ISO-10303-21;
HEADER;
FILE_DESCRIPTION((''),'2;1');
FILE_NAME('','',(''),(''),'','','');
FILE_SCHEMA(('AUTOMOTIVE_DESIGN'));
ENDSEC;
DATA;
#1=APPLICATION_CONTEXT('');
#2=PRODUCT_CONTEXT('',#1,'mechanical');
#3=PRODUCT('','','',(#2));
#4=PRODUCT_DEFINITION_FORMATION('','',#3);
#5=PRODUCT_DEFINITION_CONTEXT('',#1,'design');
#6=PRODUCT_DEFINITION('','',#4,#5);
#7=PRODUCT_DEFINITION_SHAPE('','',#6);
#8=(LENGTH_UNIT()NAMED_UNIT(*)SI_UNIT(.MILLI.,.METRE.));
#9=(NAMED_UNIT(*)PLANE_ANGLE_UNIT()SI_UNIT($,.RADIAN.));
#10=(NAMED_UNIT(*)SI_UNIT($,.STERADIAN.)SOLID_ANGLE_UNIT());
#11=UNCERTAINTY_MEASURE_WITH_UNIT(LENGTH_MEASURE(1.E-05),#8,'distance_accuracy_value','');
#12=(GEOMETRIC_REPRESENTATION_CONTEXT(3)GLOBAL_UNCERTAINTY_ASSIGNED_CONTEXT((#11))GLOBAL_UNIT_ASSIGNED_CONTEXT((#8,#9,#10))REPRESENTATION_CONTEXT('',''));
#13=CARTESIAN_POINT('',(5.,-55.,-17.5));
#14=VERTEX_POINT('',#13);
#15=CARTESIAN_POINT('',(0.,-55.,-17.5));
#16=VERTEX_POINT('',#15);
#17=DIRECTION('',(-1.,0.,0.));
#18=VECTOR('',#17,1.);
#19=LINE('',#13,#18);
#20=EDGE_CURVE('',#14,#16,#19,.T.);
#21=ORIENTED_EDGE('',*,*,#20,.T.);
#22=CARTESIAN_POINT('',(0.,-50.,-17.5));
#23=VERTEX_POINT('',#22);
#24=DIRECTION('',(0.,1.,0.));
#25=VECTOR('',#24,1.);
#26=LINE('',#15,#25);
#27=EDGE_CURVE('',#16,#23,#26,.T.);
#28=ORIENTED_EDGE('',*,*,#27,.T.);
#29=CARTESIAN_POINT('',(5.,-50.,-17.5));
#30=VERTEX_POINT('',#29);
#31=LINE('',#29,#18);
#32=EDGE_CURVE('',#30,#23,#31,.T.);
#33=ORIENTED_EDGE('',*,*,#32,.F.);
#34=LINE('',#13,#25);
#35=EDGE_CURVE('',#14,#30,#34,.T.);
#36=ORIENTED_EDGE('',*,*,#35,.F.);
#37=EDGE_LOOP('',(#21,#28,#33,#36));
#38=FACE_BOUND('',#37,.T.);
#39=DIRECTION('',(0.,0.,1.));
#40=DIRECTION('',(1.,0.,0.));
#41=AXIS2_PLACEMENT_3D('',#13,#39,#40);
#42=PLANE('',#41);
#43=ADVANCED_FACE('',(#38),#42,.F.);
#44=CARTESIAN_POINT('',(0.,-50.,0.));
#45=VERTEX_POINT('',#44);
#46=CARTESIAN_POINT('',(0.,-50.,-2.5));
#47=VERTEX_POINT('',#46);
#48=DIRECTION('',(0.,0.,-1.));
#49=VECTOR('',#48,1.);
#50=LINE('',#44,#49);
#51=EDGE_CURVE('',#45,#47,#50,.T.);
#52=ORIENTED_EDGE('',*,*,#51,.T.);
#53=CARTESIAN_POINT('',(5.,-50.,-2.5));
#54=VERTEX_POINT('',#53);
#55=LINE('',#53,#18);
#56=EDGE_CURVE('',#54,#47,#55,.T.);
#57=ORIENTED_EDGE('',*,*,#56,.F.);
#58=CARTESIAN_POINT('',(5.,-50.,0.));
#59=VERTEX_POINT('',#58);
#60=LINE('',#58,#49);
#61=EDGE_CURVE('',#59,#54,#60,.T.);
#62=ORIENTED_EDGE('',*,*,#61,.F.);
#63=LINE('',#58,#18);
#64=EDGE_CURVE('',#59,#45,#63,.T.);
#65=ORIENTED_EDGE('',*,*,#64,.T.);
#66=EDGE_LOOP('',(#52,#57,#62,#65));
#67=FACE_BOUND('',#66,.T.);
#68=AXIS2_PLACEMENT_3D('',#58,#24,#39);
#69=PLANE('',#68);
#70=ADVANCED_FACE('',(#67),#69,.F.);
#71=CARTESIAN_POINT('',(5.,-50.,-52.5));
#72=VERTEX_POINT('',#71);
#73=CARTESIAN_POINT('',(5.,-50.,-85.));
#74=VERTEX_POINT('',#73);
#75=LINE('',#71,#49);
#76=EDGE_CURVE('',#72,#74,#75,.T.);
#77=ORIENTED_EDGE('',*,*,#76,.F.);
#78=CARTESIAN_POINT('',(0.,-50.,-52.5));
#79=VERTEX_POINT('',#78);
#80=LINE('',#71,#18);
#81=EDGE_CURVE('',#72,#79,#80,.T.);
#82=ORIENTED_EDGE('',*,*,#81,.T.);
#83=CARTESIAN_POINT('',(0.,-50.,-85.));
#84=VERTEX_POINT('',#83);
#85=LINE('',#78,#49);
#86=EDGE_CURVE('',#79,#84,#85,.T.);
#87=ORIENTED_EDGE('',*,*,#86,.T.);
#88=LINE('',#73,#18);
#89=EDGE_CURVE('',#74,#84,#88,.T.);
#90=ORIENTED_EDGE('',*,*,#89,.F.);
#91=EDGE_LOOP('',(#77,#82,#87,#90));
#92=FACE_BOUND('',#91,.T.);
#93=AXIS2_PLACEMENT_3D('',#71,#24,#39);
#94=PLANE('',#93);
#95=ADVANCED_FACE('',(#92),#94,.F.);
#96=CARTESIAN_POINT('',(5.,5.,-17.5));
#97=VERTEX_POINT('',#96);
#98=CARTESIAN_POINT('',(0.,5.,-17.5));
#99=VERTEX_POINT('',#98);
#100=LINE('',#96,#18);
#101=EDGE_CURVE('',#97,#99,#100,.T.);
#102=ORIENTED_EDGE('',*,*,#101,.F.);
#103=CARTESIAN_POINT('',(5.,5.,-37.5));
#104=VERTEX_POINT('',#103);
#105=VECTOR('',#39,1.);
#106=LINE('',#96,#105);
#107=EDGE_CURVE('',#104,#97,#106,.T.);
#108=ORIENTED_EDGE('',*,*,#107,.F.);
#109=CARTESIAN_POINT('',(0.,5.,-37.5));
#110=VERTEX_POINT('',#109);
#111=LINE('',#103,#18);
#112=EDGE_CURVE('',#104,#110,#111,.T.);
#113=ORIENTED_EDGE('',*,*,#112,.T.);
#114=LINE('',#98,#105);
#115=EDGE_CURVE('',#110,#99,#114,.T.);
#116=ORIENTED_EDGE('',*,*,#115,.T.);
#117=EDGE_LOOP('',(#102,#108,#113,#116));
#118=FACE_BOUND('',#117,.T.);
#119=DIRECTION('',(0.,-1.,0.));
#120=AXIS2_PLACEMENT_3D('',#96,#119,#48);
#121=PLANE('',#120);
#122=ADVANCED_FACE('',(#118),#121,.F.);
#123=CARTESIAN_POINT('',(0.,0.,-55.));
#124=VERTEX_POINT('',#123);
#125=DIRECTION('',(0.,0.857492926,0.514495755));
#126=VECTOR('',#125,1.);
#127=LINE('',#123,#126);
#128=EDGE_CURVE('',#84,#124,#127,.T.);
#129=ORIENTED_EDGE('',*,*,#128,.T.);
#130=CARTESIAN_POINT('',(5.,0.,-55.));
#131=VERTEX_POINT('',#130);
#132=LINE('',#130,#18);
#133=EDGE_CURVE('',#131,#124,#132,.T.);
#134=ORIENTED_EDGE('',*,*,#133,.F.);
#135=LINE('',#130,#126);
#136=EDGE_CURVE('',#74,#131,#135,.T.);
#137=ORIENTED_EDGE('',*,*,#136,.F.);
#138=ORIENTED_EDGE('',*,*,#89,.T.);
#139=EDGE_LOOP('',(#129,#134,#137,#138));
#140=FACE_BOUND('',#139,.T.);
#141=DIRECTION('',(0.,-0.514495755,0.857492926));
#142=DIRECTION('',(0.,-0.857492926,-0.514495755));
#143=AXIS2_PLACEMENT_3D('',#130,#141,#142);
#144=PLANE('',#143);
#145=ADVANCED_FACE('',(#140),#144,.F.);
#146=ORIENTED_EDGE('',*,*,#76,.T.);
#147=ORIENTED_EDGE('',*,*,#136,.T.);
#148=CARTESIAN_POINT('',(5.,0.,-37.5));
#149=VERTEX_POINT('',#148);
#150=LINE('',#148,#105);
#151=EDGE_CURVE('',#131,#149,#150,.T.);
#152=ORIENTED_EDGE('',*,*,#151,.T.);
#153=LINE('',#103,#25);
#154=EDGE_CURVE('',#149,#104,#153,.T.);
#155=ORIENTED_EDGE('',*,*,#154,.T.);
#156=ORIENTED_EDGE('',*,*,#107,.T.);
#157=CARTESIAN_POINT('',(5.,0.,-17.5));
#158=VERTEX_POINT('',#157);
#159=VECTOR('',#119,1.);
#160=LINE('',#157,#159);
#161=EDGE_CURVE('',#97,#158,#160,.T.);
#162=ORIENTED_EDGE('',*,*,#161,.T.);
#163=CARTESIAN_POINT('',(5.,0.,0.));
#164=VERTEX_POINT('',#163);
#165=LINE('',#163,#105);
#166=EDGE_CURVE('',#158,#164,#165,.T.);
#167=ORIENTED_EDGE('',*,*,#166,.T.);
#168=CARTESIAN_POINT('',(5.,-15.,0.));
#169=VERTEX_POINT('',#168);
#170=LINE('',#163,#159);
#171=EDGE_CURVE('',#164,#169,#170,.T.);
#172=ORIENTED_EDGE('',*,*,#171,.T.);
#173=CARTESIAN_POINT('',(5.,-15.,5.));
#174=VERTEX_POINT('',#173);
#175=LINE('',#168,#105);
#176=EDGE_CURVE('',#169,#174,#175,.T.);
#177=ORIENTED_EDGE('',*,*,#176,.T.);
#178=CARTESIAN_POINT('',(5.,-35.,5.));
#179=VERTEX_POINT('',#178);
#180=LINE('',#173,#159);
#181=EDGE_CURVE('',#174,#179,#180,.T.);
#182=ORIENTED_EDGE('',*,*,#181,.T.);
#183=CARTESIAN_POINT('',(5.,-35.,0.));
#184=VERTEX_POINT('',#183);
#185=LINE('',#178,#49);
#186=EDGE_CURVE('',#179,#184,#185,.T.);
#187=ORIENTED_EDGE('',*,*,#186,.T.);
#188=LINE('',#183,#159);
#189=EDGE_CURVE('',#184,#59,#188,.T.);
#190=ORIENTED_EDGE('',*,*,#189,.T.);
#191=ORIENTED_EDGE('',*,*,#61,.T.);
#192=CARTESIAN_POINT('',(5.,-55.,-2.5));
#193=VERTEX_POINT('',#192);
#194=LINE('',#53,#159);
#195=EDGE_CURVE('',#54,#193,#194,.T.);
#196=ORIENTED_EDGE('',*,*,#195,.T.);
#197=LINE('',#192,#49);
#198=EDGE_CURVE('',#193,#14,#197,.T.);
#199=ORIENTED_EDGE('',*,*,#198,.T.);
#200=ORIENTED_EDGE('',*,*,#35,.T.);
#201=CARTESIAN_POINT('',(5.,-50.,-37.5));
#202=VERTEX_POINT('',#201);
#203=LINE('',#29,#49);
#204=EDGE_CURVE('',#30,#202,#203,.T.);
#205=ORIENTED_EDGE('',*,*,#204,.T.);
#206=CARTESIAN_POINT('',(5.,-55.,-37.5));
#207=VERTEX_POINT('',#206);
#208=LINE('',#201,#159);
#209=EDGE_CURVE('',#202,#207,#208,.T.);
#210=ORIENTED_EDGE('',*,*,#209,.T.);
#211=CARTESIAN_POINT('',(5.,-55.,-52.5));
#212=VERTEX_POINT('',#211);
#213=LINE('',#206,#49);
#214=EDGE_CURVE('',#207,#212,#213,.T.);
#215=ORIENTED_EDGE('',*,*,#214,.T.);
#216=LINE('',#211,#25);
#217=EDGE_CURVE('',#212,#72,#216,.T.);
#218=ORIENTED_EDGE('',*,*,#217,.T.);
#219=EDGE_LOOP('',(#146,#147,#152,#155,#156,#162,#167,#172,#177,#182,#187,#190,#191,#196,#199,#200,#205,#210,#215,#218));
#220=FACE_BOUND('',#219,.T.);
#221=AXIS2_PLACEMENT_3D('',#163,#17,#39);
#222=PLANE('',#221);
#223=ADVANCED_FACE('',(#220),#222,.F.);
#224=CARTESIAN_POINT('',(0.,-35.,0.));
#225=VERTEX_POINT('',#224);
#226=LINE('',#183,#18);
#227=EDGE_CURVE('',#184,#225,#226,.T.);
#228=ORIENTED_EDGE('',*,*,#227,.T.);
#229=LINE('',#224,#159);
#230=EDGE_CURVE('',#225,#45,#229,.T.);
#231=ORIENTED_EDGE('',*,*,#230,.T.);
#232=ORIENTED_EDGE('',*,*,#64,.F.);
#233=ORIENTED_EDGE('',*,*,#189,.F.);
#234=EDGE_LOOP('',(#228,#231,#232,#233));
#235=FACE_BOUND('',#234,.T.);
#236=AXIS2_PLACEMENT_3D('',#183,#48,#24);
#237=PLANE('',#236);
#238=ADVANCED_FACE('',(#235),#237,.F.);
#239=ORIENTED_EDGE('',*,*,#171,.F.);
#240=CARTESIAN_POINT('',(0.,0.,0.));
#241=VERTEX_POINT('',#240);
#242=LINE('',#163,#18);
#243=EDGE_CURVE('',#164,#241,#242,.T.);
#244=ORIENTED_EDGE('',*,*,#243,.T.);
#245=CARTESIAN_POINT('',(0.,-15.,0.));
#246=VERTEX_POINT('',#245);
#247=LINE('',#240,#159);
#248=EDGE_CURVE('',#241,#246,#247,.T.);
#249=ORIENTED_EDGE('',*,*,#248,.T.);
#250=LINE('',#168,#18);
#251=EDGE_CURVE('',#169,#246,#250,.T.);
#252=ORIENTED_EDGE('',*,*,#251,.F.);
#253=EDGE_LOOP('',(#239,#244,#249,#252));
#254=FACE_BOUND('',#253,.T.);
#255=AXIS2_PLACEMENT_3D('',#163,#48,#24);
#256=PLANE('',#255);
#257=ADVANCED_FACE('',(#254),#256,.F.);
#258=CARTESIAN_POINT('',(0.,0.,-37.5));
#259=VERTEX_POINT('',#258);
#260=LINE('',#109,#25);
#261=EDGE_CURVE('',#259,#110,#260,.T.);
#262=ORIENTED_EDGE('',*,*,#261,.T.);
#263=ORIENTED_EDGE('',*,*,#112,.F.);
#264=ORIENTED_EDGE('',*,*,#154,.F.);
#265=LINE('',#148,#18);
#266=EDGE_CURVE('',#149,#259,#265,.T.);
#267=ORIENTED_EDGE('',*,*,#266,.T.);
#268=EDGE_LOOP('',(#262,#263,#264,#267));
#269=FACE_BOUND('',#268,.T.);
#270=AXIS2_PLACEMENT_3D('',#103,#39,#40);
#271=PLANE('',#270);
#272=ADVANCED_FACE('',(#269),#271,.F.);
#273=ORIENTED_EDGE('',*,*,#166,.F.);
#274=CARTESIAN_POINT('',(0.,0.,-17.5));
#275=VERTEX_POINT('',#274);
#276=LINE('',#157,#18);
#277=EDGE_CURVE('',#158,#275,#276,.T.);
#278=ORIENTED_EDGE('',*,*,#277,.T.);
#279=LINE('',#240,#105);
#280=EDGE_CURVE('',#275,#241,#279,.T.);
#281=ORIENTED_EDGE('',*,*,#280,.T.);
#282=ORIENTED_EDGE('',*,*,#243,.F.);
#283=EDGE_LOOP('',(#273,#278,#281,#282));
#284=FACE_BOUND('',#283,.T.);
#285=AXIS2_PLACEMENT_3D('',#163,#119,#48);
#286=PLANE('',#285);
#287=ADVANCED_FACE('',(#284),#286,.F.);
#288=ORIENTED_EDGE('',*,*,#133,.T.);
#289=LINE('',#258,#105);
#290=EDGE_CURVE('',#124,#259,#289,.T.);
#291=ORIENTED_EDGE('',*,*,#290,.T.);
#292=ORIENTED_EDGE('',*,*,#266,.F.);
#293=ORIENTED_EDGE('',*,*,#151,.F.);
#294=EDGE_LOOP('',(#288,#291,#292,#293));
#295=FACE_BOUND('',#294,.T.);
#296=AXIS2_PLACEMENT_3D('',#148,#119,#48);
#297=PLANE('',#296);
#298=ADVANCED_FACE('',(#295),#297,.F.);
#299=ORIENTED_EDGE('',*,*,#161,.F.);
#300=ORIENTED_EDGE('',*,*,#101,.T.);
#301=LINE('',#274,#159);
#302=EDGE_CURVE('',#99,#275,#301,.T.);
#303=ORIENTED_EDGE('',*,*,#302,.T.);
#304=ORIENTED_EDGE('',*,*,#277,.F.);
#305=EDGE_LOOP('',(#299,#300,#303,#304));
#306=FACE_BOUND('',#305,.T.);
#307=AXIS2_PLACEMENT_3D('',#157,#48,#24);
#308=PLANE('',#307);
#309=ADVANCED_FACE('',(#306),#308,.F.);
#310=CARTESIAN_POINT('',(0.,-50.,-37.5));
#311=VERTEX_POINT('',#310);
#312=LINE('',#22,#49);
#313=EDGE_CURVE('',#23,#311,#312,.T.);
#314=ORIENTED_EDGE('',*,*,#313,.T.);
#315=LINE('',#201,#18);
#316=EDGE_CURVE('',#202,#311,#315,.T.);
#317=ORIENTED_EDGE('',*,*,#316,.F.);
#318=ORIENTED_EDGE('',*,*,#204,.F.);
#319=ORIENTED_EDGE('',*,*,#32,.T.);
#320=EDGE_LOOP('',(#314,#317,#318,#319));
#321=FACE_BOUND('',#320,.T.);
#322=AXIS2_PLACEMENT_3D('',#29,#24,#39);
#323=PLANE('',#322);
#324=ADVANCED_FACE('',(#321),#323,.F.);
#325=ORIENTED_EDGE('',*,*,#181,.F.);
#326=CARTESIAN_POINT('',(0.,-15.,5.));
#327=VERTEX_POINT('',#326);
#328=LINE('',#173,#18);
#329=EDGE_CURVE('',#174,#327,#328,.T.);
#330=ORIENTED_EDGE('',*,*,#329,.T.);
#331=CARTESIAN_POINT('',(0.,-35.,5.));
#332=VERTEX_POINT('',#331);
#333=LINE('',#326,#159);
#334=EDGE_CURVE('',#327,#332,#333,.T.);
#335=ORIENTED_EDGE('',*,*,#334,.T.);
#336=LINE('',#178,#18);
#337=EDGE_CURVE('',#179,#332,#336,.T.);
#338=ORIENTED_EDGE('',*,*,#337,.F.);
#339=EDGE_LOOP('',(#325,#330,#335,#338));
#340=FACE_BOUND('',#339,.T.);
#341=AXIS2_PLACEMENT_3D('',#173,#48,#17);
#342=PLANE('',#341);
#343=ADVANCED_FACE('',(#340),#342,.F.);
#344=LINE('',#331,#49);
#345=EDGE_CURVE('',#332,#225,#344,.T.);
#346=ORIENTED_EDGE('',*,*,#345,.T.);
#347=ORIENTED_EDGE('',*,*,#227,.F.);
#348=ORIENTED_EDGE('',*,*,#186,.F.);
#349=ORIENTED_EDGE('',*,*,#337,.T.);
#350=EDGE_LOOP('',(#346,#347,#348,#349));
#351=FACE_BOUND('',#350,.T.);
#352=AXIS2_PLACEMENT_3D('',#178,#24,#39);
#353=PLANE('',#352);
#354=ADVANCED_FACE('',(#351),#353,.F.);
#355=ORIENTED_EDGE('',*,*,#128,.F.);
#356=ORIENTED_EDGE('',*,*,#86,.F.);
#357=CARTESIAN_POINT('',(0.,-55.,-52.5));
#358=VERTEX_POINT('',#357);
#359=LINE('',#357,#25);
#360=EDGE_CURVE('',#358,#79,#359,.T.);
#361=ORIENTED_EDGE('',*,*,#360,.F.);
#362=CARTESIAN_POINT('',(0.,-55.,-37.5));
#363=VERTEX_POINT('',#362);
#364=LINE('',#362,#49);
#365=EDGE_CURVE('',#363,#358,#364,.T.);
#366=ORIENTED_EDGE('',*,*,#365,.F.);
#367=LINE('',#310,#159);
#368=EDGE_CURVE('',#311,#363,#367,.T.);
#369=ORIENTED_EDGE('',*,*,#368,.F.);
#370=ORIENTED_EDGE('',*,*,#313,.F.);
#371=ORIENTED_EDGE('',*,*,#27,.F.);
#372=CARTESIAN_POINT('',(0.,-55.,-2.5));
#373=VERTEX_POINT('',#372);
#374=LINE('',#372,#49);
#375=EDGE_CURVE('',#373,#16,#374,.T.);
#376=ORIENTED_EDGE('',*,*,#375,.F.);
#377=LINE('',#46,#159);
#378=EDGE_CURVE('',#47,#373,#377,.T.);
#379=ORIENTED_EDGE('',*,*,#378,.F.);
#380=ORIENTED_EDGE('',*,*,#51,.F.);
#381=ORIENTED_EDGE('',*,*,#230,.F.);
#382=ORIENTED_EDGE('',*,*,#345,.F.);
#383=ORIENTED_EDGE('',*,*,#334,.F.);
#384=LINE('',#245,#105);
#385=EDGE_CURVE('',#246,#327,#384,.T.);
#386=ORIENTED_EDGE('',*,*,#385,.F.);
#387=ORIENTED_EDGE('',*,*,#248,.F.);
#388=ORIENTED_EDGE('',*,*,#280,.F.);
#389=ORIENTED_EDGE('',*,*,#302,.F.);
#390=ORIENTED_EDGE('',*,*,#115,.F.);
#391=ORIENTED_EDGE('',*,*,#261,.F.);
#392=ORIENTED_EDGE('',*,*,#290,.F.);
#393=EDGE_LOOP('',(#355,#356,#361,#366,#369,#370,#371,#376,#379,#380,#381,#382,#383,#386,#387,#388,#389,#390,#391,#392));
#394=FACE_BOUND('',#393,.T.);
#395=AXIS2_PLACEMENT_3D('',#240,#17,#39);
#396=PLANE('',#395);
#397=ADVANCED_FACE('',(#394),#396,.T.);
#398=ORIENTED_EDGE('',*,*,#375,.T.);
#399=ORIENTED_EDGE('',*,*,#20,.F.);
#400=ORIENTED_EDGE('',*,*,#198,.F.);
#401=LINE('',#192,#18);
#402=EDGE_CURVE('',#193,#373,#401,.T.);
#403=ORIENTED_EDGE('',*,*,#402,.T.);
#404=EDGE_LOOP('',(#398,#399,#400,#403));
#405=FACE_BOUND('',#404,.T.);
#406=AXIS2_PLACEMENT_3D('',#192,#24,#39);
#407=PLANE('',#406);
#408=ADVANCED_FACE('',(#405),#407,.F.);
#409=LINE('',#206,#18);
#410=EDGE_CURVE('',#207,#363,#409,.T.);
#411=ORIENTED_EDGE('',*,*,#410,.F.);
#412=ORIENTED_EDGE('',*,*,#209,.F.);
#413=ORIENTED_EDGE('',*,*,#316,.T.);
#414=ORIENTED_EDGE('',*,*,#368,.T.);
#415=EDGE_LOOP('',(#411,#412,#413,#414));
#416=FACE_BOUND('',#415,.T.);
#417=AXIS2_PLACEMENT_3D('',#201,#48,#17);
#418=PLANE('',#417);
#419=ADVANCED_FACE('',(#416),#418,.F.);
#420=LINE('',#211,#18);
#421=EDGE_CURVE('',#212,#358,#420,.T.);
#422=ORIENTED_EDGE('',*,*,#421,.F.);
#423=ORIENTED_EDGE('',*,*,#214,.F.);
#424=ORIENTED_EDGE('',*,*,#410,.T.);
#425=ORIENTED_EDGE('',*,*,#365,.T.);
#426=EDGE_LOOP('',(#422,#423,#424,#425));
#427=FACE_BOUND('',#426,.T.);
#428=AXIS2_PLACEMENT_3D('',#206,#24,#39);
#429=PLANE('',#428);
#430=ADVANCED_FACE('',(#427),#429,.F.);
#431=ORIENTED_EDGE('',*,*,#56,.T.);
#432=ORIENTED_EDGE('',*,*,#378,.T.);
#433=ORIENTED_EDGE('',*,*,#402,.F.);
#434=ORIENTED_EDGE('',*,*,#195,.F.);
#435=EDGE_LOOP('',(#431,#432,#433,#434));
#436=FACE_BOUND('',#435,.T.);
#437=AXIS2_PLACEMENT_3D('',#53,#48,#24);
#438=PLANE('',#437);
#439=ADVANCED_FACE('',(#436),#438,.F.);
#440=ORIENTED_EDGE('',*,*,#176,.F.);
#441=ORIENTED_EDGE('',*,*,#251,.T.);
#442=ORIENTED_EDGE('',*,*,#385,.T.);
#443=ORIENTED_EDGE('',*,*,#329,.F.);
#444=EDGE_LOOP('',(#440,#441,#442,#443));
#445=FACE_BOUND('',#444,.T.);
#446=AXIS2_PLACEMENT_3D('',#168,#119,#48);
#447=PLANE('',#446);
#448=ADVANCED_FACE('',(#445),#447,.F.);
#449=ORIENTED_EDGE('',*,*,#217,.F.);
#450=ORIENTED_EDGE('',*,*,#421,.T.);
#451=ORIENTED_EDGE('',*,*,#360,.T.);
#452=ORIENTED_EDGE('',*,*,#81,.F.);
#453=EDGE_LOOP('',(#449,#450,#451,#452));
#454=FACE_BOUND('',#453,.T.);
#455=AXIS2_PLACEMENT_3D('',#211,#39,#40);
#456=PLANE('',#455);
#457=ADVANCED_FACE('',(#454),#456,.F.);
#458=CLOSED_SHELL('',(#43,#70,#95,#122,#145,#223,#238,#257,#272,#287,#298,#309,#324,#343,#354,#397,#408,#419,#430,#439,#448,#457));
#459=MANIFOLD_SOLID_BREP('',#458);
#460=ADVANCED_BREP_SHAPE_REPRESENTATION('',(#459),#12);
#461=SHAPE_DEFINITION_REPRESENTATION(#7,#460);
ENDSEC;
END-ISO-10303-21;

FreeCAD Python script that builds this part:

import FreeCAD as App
import Part
import Sketcher
from FreeCAD import Vector


def add_polygon(sketch, points):
    """Adds a closed chain of lines whose ends are joined by coincident constraints."""
    first, n = sketch.GeometryCount, len(points)
    for a, b in zip(points, points[1:] + points[:1]):
        sketch.addGeometry(Part.LineSegment(App.Vector(*a, 0), App.Vector(*b, 0)), False)
    for i in range(n):
        sketch.addConstraint(Sketcher.Constraint("Coincident", first + i, 2, first + (i + 1) % n, 1))

doc = App.newDocument("Part")
body = doc.addObject("PartDesign::Body", "Body")

# Sketch on YZ plane
sketch1 = doc.addObject("Sketcher::SketchObject", "Sketch")
body.addObject(sketch1)
sketch1.AttachmentSupport = (doc.YZ_Plane, [""])
sketch1.MapMode = "FlatFace"
add_polygon(sketch1, [(-50, -85), (0, -55), (0, -37.5), (5, -37.5), (5, -17.5), (0, -17.5), (0, 0), (-15, 0), (-15, 5), (-35, 5), (-35, 0), (-50, 0), (-50, -2.5), (-55, -2.5), (-55, -17.5), (-50, -17.5), (-50, -37.5), (-55, -37.5), (-55, -52.5), (-50, -52.5)])  # lines 0-19
sketch1.addConstraint([
    Sketcher.Constraint("Vertical", 1),
    Sketcher.Constraint("Horizontal", 2),
    Sketcher.Constraint("Vertical", 3),
    Sketcher.Constraint("Horizontal", 4),
    Sketcher.Constraint("Vertical", 5),
    Sketcher.Constraint("Horizontal", 6),
    Sketcher.Constraint("Vertical", 7),
    Sketcher.Constraint("Horizontal", 8),
    Sketcher.Constraint("Vertical", 9),
    Sketcher.Constraint("Horizontal", 10),
    Sketcher.Constraint("Vertical", 11),
    Sketcher.Constraint("Horizontal", 12),
    Sketcher.Constraint("Vertical", 13),
    Sketcher.Constraint("Horizontal", 14),
    Sketcher.Constraint("Vertical", 15),
    Sketcher.Constraint("Horizontal", 16),
    Sketcher.Constraint("Vertical", 17),
    Sketcher.Constraint("Horizontal", 18),
    Sketcher.Constraint("Vertical", 19),
    Sketcher.Constraint("Coincident", 5, 2, -1, 1),
    Sketcher.Constraint("PointOnObject", 0, 2, -2),
    Sketcher.Constraint("PointOnObject", 9, 2, -1),
    Sketcher.Constraint("Horizontal", 4, 2, 13, 2),
    Sketcher.Constraint("Horizontal", 2, 2, 15, 2),
    Sketcher.Constraint("Vertical", 11, 2, 14, 2),
    Sketcher.Constraint("Vertical", 13, 2, 16, 2),
    Sketcher.Constraint("Vertical", 15, 2, 18, 2),
    Sketcher.Constraint("Equal", 6, 10),
    Sketcher.Constraint("Equal", 4, 12),
    Sketcher.Constraint("Equal", 8, 3),
    Sketcher.Constraint("Equal", 1, 5),
    Sketcher.Constraint("Equal", 18, 7),
    Sketcher.Constraint("Equal", 10, 13),
    Sketcher.Constraint("Equal", 13, 17),
    Sketcher.Constraint("DistanceX", 2, 1, 2, 2, 5.0),
    Sketcher.Constraint("DistanceX", 6, 2, 6, 1, 15.0),
    Sketcher.Constraint("DistanceX", 8, 2, 8, 1, 20.0),
    Sketcher.Constraint("DistanceY", 1, 1, 1, 2, 17.5),
    Sketcher.Constraint("DistanceY", 19, 2, 19, 1, 32.5),
])
pad1 = doc.addObject("PartDesign::Pad", "Pad")
body.addObject(pad1)
pad1.Profile = sketch1
pad1.Length = 5

doc.recompute()
